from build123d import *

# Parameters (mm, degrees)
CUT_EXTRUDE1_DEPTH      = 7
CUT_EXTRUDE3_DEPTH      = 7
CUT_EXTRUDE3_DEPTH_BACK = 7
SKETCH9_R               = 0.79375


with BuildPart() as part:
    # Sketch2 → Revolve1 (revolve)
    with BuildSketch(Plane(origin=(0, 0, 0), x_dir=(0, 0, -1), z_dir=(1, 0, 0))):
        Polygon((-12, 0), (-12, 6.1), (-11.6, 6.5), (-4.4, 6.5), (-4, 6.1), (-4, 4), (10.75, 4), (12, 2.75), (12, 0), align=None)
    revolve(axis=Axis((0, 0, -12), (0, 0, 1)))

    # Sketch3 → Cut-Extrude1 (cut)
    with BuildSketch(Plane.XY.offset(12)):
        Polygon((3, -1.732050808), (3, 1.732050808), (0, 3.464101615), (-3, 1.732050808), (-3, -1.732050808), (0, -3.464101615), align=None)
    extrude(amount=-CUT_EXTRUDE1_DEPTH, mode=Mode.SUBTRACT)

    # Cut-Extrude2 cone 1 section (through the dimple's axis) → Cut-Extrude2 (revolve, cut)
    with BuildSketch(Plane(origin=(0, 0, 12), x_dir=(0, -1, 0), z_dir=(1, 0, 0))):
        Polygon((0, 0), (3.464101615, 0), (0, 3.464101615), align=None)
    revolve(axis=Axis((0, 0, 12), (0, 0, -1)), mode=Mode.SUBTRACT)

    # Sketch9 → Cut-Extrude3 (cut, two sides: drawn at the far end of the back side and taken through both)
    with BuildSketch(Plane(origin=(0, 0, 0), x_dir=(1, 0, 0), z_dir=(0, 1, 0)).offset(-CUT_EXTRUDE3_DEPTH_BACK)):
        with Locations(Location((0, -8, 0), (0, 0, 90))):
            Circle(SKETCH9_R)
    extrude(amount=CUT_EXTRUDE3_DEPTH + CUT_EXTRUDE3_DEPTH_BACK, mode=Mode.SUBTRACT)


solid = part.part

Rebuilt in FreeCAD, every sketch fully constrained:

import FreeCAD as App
import Part
import Sketcher
Q = App.Units.Quantity


def add_polygon(sketch, points):
    """Adds a closed chain of lines whose ends are joined by coincident constraints."""
    first, n = sketch.GeometryCount, len(points)
    for a, b in zip(points, points[1:] + points[:1]):
        sketch.addGeometry(Part.LineSegment(App.Vector(*a, 0), App.Vector(*b, 0)), False)
    for i in range(n):
        sketch.addConstraint(Sketcher.Constraint("Coincident", first + i, 2, first + (i + 1) % n, 1))

doc = App.newDocument("Part")
body = doc.addObject("PartDesign::Body", "Body")

sketch1 = body.newObject("Sketcher::SketchObject", "Sketch")
sketch1.AttachmentSupport = (doc.getObject("YZ_Plane"), [""])
sketch1.MapMode = "FlatFace"
add_polygon(sketch1, [(6.1, 12), (0, 12), (0, -12), (2.8, -12), (4, -10.8), (4, 4), (6.1, 4), (6.5, 4.4), (6.5, 11.6)])
sketch1.addConstraint(Sketcher.Constraint("Horizontal", 0))
sketch1.addConstraint(Sketcher.Constraint("Vertical", 1))
sketch1.addConstraint(Sketcher.Constraint("Horizontal", 2))
sketch1.addConstraint(Sketcher.Constraint("Vertical", 4))
sketch1.addConstraint(Sketcher.Constraint("Horizontal", 5))
sketch1.addConstraint(Sketcher.Constraint("Vertical", 7))
sketch1.addConstraint(Sketcher.Constraint("Symmetric", 0, 2, 1, 2, -1, 1))
sketch1.addConstraint(Sketcher.Constraint("Parallel", 3, 6))
sketch1.addConstraint(Sketcher.Constraint("Perpendicular", 6, 8))
sketch1.addConstraint(Sketcher.Constraint("Vertical", 5, 2, 8, 2))
sketch1.addConstraint(Sketcher.Constraint("Equal", 6, 8))
sketch1.addConstraint(Sketcher.Constraint("DistanceY", 1, 2, 1, 1, 24.0))
sketch1.addConstraint(Sketcher.Constraint("DistanceX", 0, 2, 0, 1, 6.1))
sketch1.addConstraint(Sketcher.Constraint("DistanceX", 5, 1, 5, 2, 2.1))
sketch1.addConstraint(Sketcher.Constraint("DistanceY", 7, 1, 7, 2, 7.2))
sketch1.addConstraint(Sketcher.Constraint("DistanceY", -1, 1, 4, 2, 4.0))
sketch1.addConstraint(Sketcher.Constraint("DistanceX", 2, 1, 2, 2, 2.75))
revolution = body.newObject("PartDesign::Revolution", "Revolution")
revolution.Profile = sketch1
revolution.ReferenceAxis = (sketch1, ["V_Axis"])
revolution.Angle = 360

sketch2 = body.newObject("Sketcher::SketchObject", "Sketch001")
sketch2.AttachmentSupport = (doc.getObject("XY_Plane"), [""])
sketch2.MapMode = "FlatFace"
sketch2.AttachmentOffset = App.Placement(App.Vector(0, 0, 12), App.Rotation())
add_polygon(sketch2, [(3, -1.7), (3, 1.7), (0, 3.5), (-3, 1.7), (-3, -1.7), (0, -3.5)])
sketch2.addConstraint(Sketcher.Constraint("Vertical", 0))
sketch2.addConstraint(Sketcher.Constraint("Vertical", 3))
sketch2.addConstraint(Sketcher.Constraint("Symmetric", 0, 2, 3, 2, -1, 1))
sketch2.addConstraint(Sketcher.Constraint("Symmetric", 1, 2, 4, 2, -1, 1))
sketch2.addConstraint(Sketcher.Constraint("PointOnObject", 1, 2, -2))
sketch2.addConstraint(Sketcher.Constraint("Parallel", 2, 5))
sketch2.addConstraint(Sketcher.Constraint("Horizontal", 0, 2, 2, 2))
sketch2.addConstraint(Sketcher.Constraint("Angle", 1, Q("150 deg")))
sketch2.addConstraint(Sketcher.Constraint("DistanceX", -1, 1, 0, 2, 3.0))
sketch2.addConstraint(Sketcher.Constraint("DistanceY", 0, 1, 0, 2, 3.464102))
pocket1 = body.newObject("PartDesign::Pocket", "Pocket")
pocket1.Profile = sketch2
pocket1.Length = 7

sketch3 = body.newObject("Sketcher::SketchObject", "Sketch002")
sketch3.AttachmentSupport = (doc.getObject("YZ_Plane"), [""])
sketch3.MapMode = "FlatFace"
add_polygon(sketch3, [(0, 12), (-3.5, 12), (0, 8.5)])
sketch3.addConstraint(Sketcher.Constraint("Horizontal", 0))
sketch3.addConstraint(Sketcher.Constraint("Vertical", 2))
sketch3.addConstraint(Sketcher.Constraint("PointOnObject", 1, 2, -2))
sketch3.addConstraint(Sketcher.Constraint("Equal", 0, 2))
sketch3.addConstraint(Sketcher.Constraint("DistanceY", -1, 1, 0, 2, 12.0))
sketch3.addConstraint(Sketcher.Constraint("DistanceX", 0, 2, 0, 1, 3.464102))
groove = body.newObject("PartDesign::Groove", "Groove")
groove.Profile = sketch3
groove.ReferenceAxis = (sketch3, ["V_Axis"])
groove.Angle = 360

sketch4 = body.newObject("Sketcher::SketchObject", "Sketch003")
sketch4.AttachmentSupport = (doc.getObject("XZ_Plane"), [""])
sketch4.MapMode = "FlatFace"
sketch4.addGeometry(Part.Circle(App.Vector(0, 8, 0), App.Vector(0, 0, 1), 0.8), False)
sketch4.addConstraint(Sketcher.Constraint("PointOnObject", 0, 3, -2))
sketch4.addConstraint(Sketcher.Constraint("DistanceY", -1, 1, 0, 3, 8.0))
sketch4.addConstraint(Sketcher.Constraint("Diameter", 0, 1.5875))
pocket2 = body.newObject("PartDesign::Pocket", "Pocket001")
pocket2.Profile = sketch4
pocket2.Type = "ThroughAll"
pocket2.Midplane = True

doc.recompute()
